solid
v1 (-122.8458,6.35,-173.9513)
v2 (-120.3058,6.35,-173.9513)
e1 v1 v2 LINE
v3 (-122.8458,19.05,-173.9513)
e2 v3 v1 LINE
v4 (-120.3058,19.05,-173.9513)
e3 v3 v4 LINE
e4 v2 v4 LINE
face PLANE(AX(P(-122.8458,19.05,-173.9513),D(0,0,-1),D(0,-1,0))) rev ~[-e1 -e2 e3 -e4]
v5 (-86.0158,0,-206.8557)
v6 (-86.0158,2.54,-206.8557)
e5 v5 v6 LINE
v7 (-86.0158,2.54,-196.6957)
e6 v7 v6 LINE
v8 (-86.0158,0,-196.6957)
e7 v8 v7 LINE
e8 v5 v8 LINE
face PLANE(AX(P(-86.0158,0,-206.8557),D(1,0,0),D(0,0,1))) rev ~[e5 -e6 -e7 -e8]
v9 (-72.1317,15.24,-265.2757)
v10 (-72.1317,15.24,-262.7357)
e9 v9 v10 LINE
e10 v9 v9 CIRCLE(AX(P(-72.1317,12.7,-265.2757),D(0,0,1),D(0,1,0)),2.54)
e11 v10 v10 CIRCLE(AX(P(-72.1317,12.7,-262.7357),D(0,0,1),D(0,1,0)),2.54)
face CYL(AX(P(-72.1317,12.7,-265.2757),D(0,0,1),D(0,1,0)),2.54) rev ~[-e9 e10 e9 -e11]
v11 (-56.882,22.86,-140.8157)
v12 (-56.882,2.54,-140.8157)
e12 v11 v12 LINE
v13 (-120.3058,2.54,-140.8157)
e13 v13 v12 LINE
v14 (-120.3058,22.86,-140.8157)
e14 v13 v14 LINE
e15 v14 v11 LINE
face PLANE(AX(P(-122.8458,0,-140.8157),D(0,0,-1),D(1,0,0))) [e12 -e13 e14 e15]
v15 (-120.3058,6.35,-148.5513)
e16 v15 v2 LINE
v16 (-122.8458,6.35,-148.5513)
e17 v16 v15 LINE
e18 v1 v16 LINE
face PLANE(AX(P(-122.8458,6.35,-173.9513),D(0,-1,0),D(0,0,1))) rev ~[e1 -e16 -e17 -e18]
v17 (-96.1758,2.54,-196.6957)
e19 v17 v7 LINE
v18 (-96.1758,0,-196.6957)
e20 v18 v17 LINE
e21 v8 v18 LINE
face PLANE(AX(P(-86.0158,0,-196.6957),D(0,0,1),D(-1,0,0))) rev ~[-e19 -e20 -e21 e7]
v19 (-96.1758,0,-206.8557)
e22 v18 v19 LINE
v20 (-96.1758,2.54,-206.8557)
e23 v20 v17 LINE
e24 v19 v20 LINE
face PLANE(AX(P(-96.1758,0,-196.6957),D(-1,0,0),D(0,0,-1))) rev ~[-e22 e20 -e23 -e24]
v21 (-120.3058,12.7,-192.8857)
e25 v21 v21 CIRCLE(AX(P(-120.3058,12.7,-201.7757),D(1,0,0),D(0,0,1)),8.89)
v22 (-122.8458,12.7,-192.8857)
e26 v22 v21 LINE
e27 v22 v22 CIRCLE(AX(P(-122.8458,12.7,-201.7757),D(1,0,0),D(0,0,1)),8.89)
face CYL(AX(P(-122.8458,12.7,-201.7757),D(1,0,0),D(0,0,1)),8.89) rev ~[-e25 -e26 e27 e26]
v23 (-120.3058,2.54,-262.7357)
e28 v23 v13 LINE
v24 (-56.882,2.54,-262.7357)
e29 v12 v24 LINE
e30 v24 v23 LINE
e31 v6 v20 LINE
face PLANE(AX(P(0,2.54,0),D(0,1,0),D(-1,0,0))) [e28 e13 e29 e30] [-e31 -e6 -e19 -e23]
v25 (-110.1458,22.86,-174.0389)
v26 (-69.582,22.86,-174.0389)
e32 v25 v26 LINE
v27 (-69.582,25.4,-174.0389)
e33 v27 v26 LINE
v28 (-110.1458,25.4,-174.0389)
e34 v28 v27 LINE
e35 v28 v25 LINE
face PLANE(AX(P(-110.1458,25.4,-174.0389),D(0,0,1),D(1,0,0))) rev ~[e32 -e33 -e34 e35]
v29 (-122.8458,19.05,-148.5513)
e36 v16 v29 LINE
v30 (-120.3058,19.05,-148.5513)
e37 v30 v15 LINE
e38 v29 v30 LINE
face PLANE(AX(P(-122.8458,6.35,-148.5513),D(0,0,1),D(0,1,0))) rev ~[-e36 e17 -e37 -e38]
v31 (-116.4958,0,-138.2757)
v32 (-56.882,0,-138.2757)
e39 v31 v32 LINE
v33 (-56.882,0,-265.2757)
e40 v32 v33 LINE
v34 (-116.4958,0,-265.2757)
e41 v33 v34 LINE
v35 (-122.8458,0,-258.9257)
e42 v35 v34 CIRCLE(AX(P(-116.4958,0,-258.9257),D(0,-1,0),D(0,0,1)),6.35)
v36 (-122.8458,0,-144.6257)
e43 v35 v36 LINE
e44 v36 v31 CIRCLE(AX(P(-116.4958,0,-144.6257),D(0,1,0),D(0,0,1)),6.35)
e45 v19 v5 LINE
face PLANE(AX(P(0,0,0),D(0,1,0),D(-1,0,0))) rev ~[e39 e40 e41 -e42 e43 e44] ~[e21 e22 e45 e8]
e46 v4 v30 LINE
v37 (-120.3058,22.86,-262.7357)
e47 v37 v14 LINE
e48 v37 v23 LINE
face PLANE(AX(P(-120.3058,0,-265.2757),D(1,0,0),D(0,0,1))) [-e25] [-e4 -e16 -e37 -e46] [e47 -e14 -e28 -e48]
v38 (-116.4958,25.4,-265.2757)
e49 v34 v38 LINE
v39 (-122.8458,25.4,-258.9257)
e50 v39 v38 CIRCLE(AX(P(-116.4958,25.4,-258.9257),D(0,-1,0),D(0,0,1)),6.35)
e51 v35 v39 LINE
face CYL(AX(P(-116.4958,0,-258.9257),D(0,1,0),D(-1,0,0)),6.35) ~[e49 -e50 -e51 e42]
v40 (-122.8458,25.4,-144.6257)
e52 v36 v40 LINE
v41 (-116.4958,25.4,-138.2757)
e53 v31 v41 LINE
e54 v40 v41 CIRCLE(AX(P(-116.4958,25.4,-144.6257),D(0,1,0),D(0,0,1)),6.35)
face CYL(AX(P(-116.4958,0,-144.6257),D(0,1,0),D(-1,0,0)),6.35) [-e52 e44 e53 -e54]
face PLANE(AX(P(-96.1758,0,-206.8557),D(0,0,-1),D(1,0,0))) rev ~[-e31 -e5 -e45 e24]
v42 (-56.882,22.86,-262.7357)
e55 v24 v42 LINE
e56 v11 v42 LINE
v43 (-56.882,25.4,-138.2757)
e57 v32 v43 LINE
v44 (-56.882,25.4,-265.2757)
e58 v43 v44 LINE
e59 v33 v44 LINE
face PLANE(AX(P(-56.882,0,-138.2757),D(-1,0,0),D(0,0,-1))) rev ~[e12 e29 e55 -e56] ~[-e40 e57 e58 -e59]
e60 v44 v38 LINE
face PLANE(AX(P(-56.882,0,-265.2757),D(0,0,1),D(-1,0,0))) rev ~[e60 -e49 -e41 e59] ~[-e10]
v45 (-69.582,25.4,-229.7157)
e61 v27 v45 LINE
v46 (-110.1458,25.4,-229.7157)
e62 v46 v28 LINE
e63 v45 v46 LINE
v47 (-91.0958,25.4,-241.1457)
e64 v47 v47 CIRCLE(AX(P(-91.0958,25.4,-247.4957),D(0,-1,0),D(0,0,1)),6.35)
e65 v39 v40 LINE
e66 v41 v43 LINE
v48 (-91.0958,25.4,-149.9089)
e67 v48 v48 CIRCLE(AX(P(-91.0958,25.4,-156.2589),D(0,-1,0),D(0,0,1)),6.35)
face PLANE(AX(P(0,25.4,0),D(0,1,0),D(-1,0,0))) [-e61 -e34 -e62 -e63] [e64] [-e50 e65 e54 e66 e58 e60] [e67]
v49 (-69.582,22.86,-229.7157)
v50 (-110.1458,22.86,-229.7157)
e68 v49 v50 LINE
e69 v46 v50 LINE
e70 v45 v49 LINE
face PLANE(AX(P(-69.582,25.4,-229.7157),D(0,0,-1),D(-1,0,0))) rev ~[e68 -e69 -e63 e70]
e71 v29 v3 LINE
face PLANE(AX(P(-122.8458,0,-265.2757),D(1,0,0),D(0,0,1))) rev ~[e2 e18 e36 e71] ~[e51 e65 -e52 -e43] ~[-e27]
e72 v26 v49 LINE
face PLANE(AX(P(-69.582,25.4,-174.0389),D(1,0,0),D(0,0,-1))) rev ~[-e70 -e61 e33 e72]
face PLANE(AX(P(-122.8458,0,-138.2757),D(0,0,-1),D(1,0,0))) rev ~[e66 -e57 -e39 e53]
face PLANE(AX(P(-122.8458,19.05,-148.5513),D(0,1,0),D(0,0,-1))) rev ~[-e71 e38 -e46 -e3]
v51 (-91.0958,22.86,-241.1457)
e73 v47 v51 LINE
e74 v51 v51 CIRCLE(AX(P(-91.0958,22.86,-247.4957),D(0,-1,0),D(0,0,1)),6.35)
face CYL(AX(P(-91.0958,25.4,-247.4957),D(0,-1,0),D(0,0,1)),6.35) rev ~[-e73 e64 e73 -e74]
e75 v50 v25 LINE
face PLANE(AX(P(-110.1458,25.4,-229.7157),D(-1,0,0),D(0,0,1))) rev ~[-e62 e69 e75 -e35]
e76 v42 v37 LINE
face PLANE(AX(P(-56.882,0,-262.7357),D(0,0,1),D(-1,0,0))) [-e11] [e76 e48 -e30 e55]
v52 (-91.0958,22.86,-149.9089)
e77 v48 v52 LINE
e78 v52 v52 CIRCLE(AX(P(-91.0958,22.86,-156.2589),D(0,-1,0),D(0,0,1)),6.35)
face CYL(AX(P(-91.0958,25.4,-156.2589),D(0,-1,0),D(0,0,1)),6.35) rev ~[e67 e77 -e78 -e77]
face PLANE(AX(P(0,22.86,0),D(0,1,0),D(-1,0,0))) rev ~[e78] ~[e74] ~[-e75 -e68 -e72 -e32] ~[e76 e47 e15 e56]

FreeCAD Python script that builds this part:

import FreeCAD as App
import Part
import Sketcher

V = App.Vector
Q = App.Units.Quantity


def edges_at(feature, points):
    """Names of the edges that pass closest to the given points."""
    edges = feature.Shape.Edges
    near = lambda p: min(range(len(edges)), key=lambda i: edges[i].distToShape(Part.Vertex(*p))[0])
    return sorted({f"Edge{near(p) + 1}" for p in points})


def faces_at(feature, points):
    """Names of the faces that lie closest to the given points."""
    faces = feature.Shape.Faces
    near = lambda p: min(range(len(faces)), key=lambda i: faces[i].distToShape(Part.Vertex(*p))[0])
    return sorted({f"Face{near(p) + 1}" for p in points})


def add_polygon(sketch, points):
    """Adds a closed chain of lines whose ends are joined by coincident constraints."""
    first, n = sketch.GeometryCount, len(points)
    for a, b in zip(points, points[1:] + points[:1]):
        sketch.addGeometry(Part.LineSegment(App.Vector(*a, 0), App.Vector(*b, 0)), False)
    for i in range(n):
        sketch.addConstraint(Sketcher.Constraint("Coincident", first + i, 2, first + (i + 1) % n, 1))

doc = App.newDocument("Part")
params = doc.addObject("Spreadsheet::Sheet", "Params")
for row, (alias, value) in enumerate([
    ("sketch1_height", "5 in"),
    ("sketch1_width", "2.597 in"),
    ("pad1_length", "1 in"),
    ("thickness_wall", "0.1 in"),
    ("sketch2_width", "1.597 in"),
    ("sketch2_height", "2.192 in"),
    ("pocket1_length", "0.5 in"),
    ("sketch3_diameter", "0.5 in"),
    ("hole_diameter", "0.5 in"),
    ("hole_depth", "0.5 in"),
    ("sketch4_width", "0.4 in"),
    ("pocket2_length", "0.5 in"),
    ("sketch5_diameter", "0.7 in"),
    ("hole2_diameter", "0.7 in"),
    ("hole2_depth", "0.5 in"),
    ("sketch6_height", "1 in"),
    ("sketch6_width", "0.5 in"),
    ("pocket3_length", "0.5 in"),
    ("sketch7_diameter", "0.2 in"),
    ("hole3_diameter", "0.2 in"),
    ("hole3_depth", "0.5 in"),
    ("fillet_radius", "0.25 in"),
], start=1):
    params.set(f"A{row}", alias)
    params.set(f"B{row}", "=" + value)
    params.setAlias(f"B{row}", alias)

body = doc.addObject("PartDesign::Body", "Body")

# Sketch on XZ plane
sketch1 = body.newObject("Sketcher::SketchObject", "Sketch")
sketch1.AttachmentSupport = (doc.getObject("XZ_Plane"), [""])
sketch1.MapMode = "FlatFace"
add_polygon(sketch1, [(-123, -265), (-123, -138), (-57, -138), (-57, -265)])  # lines 0-3
sketch1.addConstraint(Sketcher.Constraint("Vertical", 0))
sketch1.addConstraint(Sketcher.Constraint("Horizontal", 1))
sketch1.addConstraint(Sketcher.Constraint("Vertical", 2))
sketch1.addConstraint(Sketcher.Constraint("Horizontal", 3))
sketch1.addConstraint(Sketcher.Constraint("DistanceY", 0, 1, 0, 2, Q("5 in")))
sketch1.addConstraint(Sketcher.Constraint("DistanceX", 1, 1, 1, 2, Q("2.597 in")))
sketch1.addConstraint(Sketcher.Constraint("DistanceX", 0, 2, -1, 1, Q("122.8458 mm")))
sketch1.addConstraint(Sketcher.Constraint("DistanceY", 0, 2, -1, 1, Q("138.2757 mm")))
sketch1.setExpression("Constraints[8]", "Params.sketch1_height")
sketch1.setExpression("Constraints[9]", "Params.sketch1_width")
pad1 = body.newObject("PartDesign::Pad", "Pad")
pad1.Profile = sketch1
pad1.setExpression("Length", "Params.pad1_length")
pad1.Reversed = True
doc.recompute()

thickness = body.newObject("PartDesign::Thickness", "Thickness")
thickness.Base = (pad1, faces_at(pad1, [(-56.882, 8.467, -180.609)]))
thickness.setExpression("Value", "Params.thickness_wall")
thickness.Reversed = True
thickness.Join = "Intersection"

# Sketch on XZ plane
sketch2 = body.newObject("Sketcher::SketchObject", "Sketch001")
sketch2.AttachmentSupport = (doc.getObject("XZ_Plane"), [""])
sketch2.MapMode = "FlatFace"
sketch2.AttachmentOffset = App.Placement(V(0, 0, -1 * 25.4), App.Rotation())
add_polygon(sketch2, [(-110, -230), (-110, -174), (-70, -174), (-70, -230)])  # lines 0-3
sketch2.addConstraint(Sketcher.Constraint("Vertical", 0))
sketch2.addConstraint(Sketcher.Constraint("Horizontal", 1))
sketch2.addConstraint(Sketcher.Constraint("Vertical", 2))
sketch2.addConstraint(Sketcher.Constraint("Horizontal", 3))
sketch2.addConstraint(Sketcher.Constraint("DistanceX", 1, 1, 1, 2, Q("1.597 in")))
sketch2.addConstraint(Sketcher.Constraint("DistanceY", 0, 1, 0, 2, Q("2.192 in")))
sketch2.addConstraint(Sketcher.Constraint("DistanceX", 0, 2, -1, 1, Q("110.1458 mm")))
sketch2.addConstraint(Sketcher.Constraint("DistanceY", 0, 2, -1, 1, Q("174.039 mm")))
sketch2.setExpression("Constraints[8]", "Params.sketch2_width")
sketch2.setExpression("Constraints[9]", "Params.sketch2_height")
pocket1 = body.newObject("PartDesign::Pocket", "Pocket")
pocket1.Profile = sketch2
pocket1.setExpression("Length", "Params.pocket1_length")
pocket1.Reversed = True

# Sketch on XZ plane
sketch3 = body.newObject("Sketcher::SketchObject", "Sketch002")
sketch3.AttachmentSupport = (doc.getObject("XZ_Plane"), [""])
sketch3.MapMode = "FlatFace"
sketch3.AttachmentOffset = App.Placement(V(0, 0, -1 * 25.4), App.Rotation())
sketch3.addGeometry(Part.Circle(V(-91, -156, 0), V(0, 0, 1), 6), False)
sketch3.addGeometry(Part.Circle(V(-91, -247, 0), V(0, 0, 1), 6), False)
sketch3.addConstraint(Sketcher.Constraint("Equal", 0, 1))
sketch3.addConstraint(Sketcher.Constraint("Vertical", 0, 3, 1, 3))
sketch3.addConstraint(Sketcher.Constraint("Diameter", 0, Q("0.5 in")))
sketch3.addConstraint(Sketcher.Constraint("DistanceY", 1, 3, 0, 3, Q("3.592 in")))
sketch3.addConstraint(Sketcher.Constraint("DistanceX", 0, 3, -1, 1, Q("91.0958 mm")))
sketch3.addConstraint(Sketcher.Constraint("DistanceY", 0, 3, -1, 1, Q("156.259 mm")))
sketch3.setExpression("Constraints[2]", "Params.sketch3_diameter")
doc.recompute()
hole = body.newObject("PartDesign::Hole", "Hole")
hole.Profile = sketch3
hole.ThreadType = "None"
hole.setExpression("Diameter", "Params.hole_diameter")
hole.DepthType = "Dimension"
hole.setExpression("Depth", "Params.hole_depth")
hole.DrillPoint = "Angled"
hole.DrillPointAngle = 118
hole.Reversed = True

# Sketch on XZ plane
sketch4 = body.newObject("Sketcher::SketchObject", "Sketch003")
sketch4.AttachmentSupport = (doc.getObject("XZ_Plane"), [""])
sketch4.MapMode = "FlatFace"
add_polygon(sketch4, [(-96, -197), (-96, -207), (-86, -207), (-86, -197)])  # lines 0-3
sketch4.addConstraint(Sketcher.Constraint("Vertical", 0))
sketch4.addConstraint(Sketcher.Constraint("Horizontal", 1))
sketch4.addConstraint(Sketcher.Constraint("Vertical", 2))
sketch4.addConstraint(Sketcher.Constraint("Horizontal", 3))
sketch4.addConstraint(Sketcher.Constraint("Equal", 3, 0))
sketch4.addConstraint(Sketcher.Constraint("DistanceX", 1, 1, 1, 2, Q("0.4 in")))
sketch4.addConstraint(Sketcher.Constraint("DistanceX", 0, 2, -1, 1, Q("96.1758 mm")))
sketch4.addConstraint(Sketcher.Constraint("DistanceY", 0, 2, -1, 1, Q("206.8557 mm")))
sketch4.setExpression("Constraints[9]", "Params.sketch4_width")
pocket2 = body.newObject("PartDesign::Pocket", "Pocket001")
pocket2.Profile = sketch4
pocket2.setExpression("Length", "Params.pocket2_length")

# Sketch on YZ plane
sketch5 = body.newObject("Sketcher::SketchObject", "Sketch004")
sketch5.AttachmentSupport = (doc.getObject("YZ_Plane"), [""])
sketch5.MapMode = "FlatFace"
sketch5.AttachmentOffset = App.Placement(V(0, 0, -122.8458), App.Rotation())
sketch5.addGeometry(Part.Circle(V(13, -202, 0), V(0, 0, 1), 9), False)
sketch5.addConstraint(Sketcher.Constraint("Diameter", 0, Q("0.7 in")))
sketch5.addConstraint(Sketcher.Constraint("DistanceX", -1, 1, 0, 3, Q("0.5 in")))
sketch5.addConstraint(Sketcher.Constraint("DistanceY", 0, 3, -1, 1, Q("201.7757 mm")))
sketch5.setExpression("Constraints[0]", "Params.sketch5_diameter")
doc.recompute()
hole2 = body.newObject("PartDesign::Hole", "Hole001")
hole2.Profile = sketch5
hole2.ThreadType = "None"
hole2.setExpression("Diameter", "Params.hole2_diameter")
hole2.DepthType = "Dimension"
hole2.setExpression("Depth", "Params.hole2_depth")
hole2.DrillPoint = "Angled"
hole2.DrillPointAngle = 118
hole2.Reversed = True

# Sketch on YZ plane
sketch6 = body.newObject("Sketcher::SketchObject", "Sketch005")
sketch6.AttachmentSupport = (doc.getObject("YZ_Plane"), [""])
sketch6.MapMode = "FlatFace"
sketch6.AttachmentOffset = App.Placement(V(0, 0, -122.8458), App.Rotation())
add_polygon(sketch6, [(6, -149), (19, -149), (19, -174), (6, -174)])  # lines 0-3
sketch6.addConstraint(Sketcher.Constraint("Horizontal", 0))
sketch6.addConstraint(Sketcher.Constraint("Vertical", 1))
sketch6.addConstraint(Sketcher.Constraint("Horizontal", 2))
sketch6.addConstraint(Sketcher.Constraint("Vertical", 3))
sketch6.addConstraint(Sketcher.Constraint("DistanceY", 1, 2, 1, 1, Q("1 in")))
sketch6.addConstraint(Sketcher.Constraint("DistanceX", 0, 1, 0, 2, Q("0.5 in")))
sketch6.addConstraint(Sketcher.Constraint("DistanceX", -1, 1, 2, 2, Q("0.25 in")))
sketch6.addConstraint(Sketcher.Constraint("DistanceY", 0, 2, -1, 1, Q("148.5513 mm")))
sketch6.setExpression("Constraints[8]", "Params.sketch6_height")
sketch6.setExpression("Constraints[9]", "Params.sketch6_width")
pocket3 = body.newObject("PartDesign::Pocket", "Pocket002")
pocket3.Profile = sketch6
pocket3.setExpression("Length", "Params.pocket3_length")
pocket3.Reversed = True

# Sketch on XY plane
sketch7 = body.newObject("Sketcher::SketchObject", "Sketch006")
sketch7.AttachmentSupport = (doc.getObject("XY_Plane"), [""])
sketch7.MapMode = "FlatFace"
sketch7.AttachmentOffset = App.Placement(V(0, 0, -265.2757), App.Rotation())
sketch7.addGeometry(Part.Circle(V(-72.1, 12.7, 0), V(0, 0, 1), 2.5), False)
sketch7.addConstraint(Sketcher.Constraint("Diameter", 0, Q("0.2 in")))
sketch7.addConstraint(Sketcher.Constraint("DistanceY", -1, 1, 0, 3, Q("0.5 in")))
sketch7.addConstraint(Sketcher.Constraint("DistanceX", 0, 3, -1, 1, Q("72.1317 mm")))
sketch7.setExpression("Constraints[0]", "Params.sketch7_diameter")
doc.recompute()
hole3 = body.newObject("PartDesign::Hole", "Hole002")
hole3.Profile = sketch7
hole3.ThreadType = "None"
hole3.setExpression("Diameter", "Params.hole3_diameter")
hole3.DepthType = "Dimension"
hole3.setExpression("Depth", "Params.hole3_depth")
hole3.DrillPoint = "Angled"
hole3.DrillPointAngle = 118
hole3.Reversed = True
doc.recompute()

fillet = body.newObject("PartDesign::Fillet", "Fillet")
fillet.Base = (hole3, edges_at(hole3, [(-122.846, 12.7, -265.276), (-122.846, 12.7, -138.276)]))
fillet.setExpression("Radius", "Params.fillet_radius")

doc.recompute()
